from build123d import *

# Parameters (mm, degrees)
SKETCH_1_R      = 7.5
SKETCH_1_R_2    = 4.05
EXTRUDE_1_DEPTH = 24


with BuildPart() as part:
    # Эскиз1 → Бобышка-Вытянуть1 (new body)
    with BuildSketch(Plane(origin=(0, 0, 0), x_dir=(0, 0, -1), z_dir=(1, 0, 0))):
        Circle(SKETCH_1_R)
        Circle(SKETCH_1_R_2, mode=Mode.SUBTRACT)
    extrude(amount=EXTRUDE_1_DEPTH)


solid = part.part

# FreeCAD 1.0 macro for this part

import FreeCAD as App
import Part
import Sketcher
from FreeCAD import Vector
Q = App.Units.Quantity

doc = App.newDocument("Part")
body = doc.addObject("PartDesign::Body", "Body")

sketch1 = body.newObject("Sketcher::SketchObject", "Sketch")
sketch1.AttachmentSupport = (doc.getObject("YZ_Plane"), [""])
sketch1.MapMode = "FlatFace"
sketch1.addGeometry([
    Part.Circle(Vector(0, 0, 0), Vector(0, 0, 1), 7.5),
    Part.Circle(Vector(0, 0, 0), Vector(0, 0, 1), 4),
], False)
sketch1.addConstraint([
    Sketcher.Constraint("Coincident", 0, 3, -1, 1),
    Sketcher.Constraint("Coincident", 1, 3, -1, 1),
    Sketcher.Constraint("Diameter", 0, Q("15 mm")),
    Sketcher.Constraint("Diameter", 1, Q("8.1 mm")),
])
pad1 = body.newObject("PartDesign::Pad", "Pad")
pad1.Profile = sketch1
pad1.Length = 24

doc.recompute()
